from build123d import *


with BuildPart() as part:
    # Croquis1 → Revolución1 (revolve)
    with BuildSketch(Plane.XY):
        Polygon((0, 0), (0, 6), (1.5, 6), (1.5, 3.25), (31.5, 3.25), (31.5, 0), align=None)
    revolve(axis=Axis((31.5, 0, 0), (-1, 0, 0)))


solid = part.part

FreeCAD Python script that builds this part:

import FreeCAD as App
import Part
import Sketcher

V = App.Vector

doc = App.newDocument("Part")
params = doc.addObject("Spreadsheet::Sheet", "Params")
for row, (alias, value) in enumerate([
    ("sketch1_width", "30 mm"),
    ("sketch1_height", "6 mm"),
    ("sketch1_width2", "31.5 mm"),
    ("sketch1_height2", "3.25 mm"),
    ("revolution_angle", "360 deg"),
], start=1):
    params.set(f"A{row}", alias)
    params.set(f"B{row}", "=" + value)
    params.setAlias(f"B{row}", alias)

body = doc.addObject("PartDesign::Body", "Body")

sketch1 = body.newObject("Sketcher::SketchObject", "Sketch")
sketch1.AttachmentSupport = (doc.getObject("XY_Plane"), [""])
sketch1.MapMode = "FlatFace"
sketch1.addGeometry([
    Part.LineSegment(V(0, 6, 0), V(0, 0, 0)),
    Part.LineSegment(V(0, 0, 0), V(31.5, 0, 0)),
    Part.LineSegment(V(31.5, 0, 0), V(31.5, 3.2, 0)),
    Part.LineSegment(V(31.5, 3.2, 0), V(1.5, 3.2, 0)),
    Part.LineSegment(V(1.5, 3.2, 0), V(1.5, 6, 0)),
    Part.LineSegment(V(1.5, 6, 0), V(0, 6, 0)),
], False)
sketch1.addConstraint([
    Sketcher.Constraint("Coincident", 0, 2, 1, 1),
    Sketcher.Constraint("Coincident", 1, 2, 2, 1),
    Sketcher.Constraint("Coincident", 2, 2, 3, 1),
    Sketcher.Constraint("Coincident", 3, 2, 4, 1),
    Sketcher.Constraint("Coincident", 4, 2, 5, 1),
    Sketcher.Constraint("Coincident", 5, 2, 0, 1),
    Sketcher.Constraint("Vertical", 0),
    Sketcher.Constraint("Horizontal", 1),
    Sketcher.Constraint("Vertical", 2),
    Sketcher.Constraint("Horizontal", 3),
    Sketcher.Constraint("Vertical", 4),
    Sketcher.Constraint("Horizontal", 5),
    Sketcher.Constraint("Coincident", 0, 2, -1, 1),
    Sketcher.Constraint("DistanceX", 3, 2, 3, 1, 30.0),
    Sketcher.Constraint("DistanceY", 0, 2, 0, 1, 6.0),
    Sketcher.Constraint("DistanceX", 1, 1, 1, 2, 31.5),
    Sketcher.Constraint("DistanceY", 2, 1, 2, 2, 3.25),
])
sketch1.setExpression("Constraints[13]", "Params.sketch1_width")
sketch1.setExpression("Constraints[14]", "Params.sketch1_height")
sketch1.setExpression("Constraints[15]", "Params.sketch1_width2")
sketch1.setExpression("Constraints[16]", "Params.sketch1_height2")
revolution = body.newObject("PartDesign::Revolution", "Revolution")
revolution.Profile = sketch1
revolution.ReferenceAxis = (sketch1, ["H_Axis"])
revolution.setExpression("Angle", "Params.revolution_angle")

doc.recompute()
